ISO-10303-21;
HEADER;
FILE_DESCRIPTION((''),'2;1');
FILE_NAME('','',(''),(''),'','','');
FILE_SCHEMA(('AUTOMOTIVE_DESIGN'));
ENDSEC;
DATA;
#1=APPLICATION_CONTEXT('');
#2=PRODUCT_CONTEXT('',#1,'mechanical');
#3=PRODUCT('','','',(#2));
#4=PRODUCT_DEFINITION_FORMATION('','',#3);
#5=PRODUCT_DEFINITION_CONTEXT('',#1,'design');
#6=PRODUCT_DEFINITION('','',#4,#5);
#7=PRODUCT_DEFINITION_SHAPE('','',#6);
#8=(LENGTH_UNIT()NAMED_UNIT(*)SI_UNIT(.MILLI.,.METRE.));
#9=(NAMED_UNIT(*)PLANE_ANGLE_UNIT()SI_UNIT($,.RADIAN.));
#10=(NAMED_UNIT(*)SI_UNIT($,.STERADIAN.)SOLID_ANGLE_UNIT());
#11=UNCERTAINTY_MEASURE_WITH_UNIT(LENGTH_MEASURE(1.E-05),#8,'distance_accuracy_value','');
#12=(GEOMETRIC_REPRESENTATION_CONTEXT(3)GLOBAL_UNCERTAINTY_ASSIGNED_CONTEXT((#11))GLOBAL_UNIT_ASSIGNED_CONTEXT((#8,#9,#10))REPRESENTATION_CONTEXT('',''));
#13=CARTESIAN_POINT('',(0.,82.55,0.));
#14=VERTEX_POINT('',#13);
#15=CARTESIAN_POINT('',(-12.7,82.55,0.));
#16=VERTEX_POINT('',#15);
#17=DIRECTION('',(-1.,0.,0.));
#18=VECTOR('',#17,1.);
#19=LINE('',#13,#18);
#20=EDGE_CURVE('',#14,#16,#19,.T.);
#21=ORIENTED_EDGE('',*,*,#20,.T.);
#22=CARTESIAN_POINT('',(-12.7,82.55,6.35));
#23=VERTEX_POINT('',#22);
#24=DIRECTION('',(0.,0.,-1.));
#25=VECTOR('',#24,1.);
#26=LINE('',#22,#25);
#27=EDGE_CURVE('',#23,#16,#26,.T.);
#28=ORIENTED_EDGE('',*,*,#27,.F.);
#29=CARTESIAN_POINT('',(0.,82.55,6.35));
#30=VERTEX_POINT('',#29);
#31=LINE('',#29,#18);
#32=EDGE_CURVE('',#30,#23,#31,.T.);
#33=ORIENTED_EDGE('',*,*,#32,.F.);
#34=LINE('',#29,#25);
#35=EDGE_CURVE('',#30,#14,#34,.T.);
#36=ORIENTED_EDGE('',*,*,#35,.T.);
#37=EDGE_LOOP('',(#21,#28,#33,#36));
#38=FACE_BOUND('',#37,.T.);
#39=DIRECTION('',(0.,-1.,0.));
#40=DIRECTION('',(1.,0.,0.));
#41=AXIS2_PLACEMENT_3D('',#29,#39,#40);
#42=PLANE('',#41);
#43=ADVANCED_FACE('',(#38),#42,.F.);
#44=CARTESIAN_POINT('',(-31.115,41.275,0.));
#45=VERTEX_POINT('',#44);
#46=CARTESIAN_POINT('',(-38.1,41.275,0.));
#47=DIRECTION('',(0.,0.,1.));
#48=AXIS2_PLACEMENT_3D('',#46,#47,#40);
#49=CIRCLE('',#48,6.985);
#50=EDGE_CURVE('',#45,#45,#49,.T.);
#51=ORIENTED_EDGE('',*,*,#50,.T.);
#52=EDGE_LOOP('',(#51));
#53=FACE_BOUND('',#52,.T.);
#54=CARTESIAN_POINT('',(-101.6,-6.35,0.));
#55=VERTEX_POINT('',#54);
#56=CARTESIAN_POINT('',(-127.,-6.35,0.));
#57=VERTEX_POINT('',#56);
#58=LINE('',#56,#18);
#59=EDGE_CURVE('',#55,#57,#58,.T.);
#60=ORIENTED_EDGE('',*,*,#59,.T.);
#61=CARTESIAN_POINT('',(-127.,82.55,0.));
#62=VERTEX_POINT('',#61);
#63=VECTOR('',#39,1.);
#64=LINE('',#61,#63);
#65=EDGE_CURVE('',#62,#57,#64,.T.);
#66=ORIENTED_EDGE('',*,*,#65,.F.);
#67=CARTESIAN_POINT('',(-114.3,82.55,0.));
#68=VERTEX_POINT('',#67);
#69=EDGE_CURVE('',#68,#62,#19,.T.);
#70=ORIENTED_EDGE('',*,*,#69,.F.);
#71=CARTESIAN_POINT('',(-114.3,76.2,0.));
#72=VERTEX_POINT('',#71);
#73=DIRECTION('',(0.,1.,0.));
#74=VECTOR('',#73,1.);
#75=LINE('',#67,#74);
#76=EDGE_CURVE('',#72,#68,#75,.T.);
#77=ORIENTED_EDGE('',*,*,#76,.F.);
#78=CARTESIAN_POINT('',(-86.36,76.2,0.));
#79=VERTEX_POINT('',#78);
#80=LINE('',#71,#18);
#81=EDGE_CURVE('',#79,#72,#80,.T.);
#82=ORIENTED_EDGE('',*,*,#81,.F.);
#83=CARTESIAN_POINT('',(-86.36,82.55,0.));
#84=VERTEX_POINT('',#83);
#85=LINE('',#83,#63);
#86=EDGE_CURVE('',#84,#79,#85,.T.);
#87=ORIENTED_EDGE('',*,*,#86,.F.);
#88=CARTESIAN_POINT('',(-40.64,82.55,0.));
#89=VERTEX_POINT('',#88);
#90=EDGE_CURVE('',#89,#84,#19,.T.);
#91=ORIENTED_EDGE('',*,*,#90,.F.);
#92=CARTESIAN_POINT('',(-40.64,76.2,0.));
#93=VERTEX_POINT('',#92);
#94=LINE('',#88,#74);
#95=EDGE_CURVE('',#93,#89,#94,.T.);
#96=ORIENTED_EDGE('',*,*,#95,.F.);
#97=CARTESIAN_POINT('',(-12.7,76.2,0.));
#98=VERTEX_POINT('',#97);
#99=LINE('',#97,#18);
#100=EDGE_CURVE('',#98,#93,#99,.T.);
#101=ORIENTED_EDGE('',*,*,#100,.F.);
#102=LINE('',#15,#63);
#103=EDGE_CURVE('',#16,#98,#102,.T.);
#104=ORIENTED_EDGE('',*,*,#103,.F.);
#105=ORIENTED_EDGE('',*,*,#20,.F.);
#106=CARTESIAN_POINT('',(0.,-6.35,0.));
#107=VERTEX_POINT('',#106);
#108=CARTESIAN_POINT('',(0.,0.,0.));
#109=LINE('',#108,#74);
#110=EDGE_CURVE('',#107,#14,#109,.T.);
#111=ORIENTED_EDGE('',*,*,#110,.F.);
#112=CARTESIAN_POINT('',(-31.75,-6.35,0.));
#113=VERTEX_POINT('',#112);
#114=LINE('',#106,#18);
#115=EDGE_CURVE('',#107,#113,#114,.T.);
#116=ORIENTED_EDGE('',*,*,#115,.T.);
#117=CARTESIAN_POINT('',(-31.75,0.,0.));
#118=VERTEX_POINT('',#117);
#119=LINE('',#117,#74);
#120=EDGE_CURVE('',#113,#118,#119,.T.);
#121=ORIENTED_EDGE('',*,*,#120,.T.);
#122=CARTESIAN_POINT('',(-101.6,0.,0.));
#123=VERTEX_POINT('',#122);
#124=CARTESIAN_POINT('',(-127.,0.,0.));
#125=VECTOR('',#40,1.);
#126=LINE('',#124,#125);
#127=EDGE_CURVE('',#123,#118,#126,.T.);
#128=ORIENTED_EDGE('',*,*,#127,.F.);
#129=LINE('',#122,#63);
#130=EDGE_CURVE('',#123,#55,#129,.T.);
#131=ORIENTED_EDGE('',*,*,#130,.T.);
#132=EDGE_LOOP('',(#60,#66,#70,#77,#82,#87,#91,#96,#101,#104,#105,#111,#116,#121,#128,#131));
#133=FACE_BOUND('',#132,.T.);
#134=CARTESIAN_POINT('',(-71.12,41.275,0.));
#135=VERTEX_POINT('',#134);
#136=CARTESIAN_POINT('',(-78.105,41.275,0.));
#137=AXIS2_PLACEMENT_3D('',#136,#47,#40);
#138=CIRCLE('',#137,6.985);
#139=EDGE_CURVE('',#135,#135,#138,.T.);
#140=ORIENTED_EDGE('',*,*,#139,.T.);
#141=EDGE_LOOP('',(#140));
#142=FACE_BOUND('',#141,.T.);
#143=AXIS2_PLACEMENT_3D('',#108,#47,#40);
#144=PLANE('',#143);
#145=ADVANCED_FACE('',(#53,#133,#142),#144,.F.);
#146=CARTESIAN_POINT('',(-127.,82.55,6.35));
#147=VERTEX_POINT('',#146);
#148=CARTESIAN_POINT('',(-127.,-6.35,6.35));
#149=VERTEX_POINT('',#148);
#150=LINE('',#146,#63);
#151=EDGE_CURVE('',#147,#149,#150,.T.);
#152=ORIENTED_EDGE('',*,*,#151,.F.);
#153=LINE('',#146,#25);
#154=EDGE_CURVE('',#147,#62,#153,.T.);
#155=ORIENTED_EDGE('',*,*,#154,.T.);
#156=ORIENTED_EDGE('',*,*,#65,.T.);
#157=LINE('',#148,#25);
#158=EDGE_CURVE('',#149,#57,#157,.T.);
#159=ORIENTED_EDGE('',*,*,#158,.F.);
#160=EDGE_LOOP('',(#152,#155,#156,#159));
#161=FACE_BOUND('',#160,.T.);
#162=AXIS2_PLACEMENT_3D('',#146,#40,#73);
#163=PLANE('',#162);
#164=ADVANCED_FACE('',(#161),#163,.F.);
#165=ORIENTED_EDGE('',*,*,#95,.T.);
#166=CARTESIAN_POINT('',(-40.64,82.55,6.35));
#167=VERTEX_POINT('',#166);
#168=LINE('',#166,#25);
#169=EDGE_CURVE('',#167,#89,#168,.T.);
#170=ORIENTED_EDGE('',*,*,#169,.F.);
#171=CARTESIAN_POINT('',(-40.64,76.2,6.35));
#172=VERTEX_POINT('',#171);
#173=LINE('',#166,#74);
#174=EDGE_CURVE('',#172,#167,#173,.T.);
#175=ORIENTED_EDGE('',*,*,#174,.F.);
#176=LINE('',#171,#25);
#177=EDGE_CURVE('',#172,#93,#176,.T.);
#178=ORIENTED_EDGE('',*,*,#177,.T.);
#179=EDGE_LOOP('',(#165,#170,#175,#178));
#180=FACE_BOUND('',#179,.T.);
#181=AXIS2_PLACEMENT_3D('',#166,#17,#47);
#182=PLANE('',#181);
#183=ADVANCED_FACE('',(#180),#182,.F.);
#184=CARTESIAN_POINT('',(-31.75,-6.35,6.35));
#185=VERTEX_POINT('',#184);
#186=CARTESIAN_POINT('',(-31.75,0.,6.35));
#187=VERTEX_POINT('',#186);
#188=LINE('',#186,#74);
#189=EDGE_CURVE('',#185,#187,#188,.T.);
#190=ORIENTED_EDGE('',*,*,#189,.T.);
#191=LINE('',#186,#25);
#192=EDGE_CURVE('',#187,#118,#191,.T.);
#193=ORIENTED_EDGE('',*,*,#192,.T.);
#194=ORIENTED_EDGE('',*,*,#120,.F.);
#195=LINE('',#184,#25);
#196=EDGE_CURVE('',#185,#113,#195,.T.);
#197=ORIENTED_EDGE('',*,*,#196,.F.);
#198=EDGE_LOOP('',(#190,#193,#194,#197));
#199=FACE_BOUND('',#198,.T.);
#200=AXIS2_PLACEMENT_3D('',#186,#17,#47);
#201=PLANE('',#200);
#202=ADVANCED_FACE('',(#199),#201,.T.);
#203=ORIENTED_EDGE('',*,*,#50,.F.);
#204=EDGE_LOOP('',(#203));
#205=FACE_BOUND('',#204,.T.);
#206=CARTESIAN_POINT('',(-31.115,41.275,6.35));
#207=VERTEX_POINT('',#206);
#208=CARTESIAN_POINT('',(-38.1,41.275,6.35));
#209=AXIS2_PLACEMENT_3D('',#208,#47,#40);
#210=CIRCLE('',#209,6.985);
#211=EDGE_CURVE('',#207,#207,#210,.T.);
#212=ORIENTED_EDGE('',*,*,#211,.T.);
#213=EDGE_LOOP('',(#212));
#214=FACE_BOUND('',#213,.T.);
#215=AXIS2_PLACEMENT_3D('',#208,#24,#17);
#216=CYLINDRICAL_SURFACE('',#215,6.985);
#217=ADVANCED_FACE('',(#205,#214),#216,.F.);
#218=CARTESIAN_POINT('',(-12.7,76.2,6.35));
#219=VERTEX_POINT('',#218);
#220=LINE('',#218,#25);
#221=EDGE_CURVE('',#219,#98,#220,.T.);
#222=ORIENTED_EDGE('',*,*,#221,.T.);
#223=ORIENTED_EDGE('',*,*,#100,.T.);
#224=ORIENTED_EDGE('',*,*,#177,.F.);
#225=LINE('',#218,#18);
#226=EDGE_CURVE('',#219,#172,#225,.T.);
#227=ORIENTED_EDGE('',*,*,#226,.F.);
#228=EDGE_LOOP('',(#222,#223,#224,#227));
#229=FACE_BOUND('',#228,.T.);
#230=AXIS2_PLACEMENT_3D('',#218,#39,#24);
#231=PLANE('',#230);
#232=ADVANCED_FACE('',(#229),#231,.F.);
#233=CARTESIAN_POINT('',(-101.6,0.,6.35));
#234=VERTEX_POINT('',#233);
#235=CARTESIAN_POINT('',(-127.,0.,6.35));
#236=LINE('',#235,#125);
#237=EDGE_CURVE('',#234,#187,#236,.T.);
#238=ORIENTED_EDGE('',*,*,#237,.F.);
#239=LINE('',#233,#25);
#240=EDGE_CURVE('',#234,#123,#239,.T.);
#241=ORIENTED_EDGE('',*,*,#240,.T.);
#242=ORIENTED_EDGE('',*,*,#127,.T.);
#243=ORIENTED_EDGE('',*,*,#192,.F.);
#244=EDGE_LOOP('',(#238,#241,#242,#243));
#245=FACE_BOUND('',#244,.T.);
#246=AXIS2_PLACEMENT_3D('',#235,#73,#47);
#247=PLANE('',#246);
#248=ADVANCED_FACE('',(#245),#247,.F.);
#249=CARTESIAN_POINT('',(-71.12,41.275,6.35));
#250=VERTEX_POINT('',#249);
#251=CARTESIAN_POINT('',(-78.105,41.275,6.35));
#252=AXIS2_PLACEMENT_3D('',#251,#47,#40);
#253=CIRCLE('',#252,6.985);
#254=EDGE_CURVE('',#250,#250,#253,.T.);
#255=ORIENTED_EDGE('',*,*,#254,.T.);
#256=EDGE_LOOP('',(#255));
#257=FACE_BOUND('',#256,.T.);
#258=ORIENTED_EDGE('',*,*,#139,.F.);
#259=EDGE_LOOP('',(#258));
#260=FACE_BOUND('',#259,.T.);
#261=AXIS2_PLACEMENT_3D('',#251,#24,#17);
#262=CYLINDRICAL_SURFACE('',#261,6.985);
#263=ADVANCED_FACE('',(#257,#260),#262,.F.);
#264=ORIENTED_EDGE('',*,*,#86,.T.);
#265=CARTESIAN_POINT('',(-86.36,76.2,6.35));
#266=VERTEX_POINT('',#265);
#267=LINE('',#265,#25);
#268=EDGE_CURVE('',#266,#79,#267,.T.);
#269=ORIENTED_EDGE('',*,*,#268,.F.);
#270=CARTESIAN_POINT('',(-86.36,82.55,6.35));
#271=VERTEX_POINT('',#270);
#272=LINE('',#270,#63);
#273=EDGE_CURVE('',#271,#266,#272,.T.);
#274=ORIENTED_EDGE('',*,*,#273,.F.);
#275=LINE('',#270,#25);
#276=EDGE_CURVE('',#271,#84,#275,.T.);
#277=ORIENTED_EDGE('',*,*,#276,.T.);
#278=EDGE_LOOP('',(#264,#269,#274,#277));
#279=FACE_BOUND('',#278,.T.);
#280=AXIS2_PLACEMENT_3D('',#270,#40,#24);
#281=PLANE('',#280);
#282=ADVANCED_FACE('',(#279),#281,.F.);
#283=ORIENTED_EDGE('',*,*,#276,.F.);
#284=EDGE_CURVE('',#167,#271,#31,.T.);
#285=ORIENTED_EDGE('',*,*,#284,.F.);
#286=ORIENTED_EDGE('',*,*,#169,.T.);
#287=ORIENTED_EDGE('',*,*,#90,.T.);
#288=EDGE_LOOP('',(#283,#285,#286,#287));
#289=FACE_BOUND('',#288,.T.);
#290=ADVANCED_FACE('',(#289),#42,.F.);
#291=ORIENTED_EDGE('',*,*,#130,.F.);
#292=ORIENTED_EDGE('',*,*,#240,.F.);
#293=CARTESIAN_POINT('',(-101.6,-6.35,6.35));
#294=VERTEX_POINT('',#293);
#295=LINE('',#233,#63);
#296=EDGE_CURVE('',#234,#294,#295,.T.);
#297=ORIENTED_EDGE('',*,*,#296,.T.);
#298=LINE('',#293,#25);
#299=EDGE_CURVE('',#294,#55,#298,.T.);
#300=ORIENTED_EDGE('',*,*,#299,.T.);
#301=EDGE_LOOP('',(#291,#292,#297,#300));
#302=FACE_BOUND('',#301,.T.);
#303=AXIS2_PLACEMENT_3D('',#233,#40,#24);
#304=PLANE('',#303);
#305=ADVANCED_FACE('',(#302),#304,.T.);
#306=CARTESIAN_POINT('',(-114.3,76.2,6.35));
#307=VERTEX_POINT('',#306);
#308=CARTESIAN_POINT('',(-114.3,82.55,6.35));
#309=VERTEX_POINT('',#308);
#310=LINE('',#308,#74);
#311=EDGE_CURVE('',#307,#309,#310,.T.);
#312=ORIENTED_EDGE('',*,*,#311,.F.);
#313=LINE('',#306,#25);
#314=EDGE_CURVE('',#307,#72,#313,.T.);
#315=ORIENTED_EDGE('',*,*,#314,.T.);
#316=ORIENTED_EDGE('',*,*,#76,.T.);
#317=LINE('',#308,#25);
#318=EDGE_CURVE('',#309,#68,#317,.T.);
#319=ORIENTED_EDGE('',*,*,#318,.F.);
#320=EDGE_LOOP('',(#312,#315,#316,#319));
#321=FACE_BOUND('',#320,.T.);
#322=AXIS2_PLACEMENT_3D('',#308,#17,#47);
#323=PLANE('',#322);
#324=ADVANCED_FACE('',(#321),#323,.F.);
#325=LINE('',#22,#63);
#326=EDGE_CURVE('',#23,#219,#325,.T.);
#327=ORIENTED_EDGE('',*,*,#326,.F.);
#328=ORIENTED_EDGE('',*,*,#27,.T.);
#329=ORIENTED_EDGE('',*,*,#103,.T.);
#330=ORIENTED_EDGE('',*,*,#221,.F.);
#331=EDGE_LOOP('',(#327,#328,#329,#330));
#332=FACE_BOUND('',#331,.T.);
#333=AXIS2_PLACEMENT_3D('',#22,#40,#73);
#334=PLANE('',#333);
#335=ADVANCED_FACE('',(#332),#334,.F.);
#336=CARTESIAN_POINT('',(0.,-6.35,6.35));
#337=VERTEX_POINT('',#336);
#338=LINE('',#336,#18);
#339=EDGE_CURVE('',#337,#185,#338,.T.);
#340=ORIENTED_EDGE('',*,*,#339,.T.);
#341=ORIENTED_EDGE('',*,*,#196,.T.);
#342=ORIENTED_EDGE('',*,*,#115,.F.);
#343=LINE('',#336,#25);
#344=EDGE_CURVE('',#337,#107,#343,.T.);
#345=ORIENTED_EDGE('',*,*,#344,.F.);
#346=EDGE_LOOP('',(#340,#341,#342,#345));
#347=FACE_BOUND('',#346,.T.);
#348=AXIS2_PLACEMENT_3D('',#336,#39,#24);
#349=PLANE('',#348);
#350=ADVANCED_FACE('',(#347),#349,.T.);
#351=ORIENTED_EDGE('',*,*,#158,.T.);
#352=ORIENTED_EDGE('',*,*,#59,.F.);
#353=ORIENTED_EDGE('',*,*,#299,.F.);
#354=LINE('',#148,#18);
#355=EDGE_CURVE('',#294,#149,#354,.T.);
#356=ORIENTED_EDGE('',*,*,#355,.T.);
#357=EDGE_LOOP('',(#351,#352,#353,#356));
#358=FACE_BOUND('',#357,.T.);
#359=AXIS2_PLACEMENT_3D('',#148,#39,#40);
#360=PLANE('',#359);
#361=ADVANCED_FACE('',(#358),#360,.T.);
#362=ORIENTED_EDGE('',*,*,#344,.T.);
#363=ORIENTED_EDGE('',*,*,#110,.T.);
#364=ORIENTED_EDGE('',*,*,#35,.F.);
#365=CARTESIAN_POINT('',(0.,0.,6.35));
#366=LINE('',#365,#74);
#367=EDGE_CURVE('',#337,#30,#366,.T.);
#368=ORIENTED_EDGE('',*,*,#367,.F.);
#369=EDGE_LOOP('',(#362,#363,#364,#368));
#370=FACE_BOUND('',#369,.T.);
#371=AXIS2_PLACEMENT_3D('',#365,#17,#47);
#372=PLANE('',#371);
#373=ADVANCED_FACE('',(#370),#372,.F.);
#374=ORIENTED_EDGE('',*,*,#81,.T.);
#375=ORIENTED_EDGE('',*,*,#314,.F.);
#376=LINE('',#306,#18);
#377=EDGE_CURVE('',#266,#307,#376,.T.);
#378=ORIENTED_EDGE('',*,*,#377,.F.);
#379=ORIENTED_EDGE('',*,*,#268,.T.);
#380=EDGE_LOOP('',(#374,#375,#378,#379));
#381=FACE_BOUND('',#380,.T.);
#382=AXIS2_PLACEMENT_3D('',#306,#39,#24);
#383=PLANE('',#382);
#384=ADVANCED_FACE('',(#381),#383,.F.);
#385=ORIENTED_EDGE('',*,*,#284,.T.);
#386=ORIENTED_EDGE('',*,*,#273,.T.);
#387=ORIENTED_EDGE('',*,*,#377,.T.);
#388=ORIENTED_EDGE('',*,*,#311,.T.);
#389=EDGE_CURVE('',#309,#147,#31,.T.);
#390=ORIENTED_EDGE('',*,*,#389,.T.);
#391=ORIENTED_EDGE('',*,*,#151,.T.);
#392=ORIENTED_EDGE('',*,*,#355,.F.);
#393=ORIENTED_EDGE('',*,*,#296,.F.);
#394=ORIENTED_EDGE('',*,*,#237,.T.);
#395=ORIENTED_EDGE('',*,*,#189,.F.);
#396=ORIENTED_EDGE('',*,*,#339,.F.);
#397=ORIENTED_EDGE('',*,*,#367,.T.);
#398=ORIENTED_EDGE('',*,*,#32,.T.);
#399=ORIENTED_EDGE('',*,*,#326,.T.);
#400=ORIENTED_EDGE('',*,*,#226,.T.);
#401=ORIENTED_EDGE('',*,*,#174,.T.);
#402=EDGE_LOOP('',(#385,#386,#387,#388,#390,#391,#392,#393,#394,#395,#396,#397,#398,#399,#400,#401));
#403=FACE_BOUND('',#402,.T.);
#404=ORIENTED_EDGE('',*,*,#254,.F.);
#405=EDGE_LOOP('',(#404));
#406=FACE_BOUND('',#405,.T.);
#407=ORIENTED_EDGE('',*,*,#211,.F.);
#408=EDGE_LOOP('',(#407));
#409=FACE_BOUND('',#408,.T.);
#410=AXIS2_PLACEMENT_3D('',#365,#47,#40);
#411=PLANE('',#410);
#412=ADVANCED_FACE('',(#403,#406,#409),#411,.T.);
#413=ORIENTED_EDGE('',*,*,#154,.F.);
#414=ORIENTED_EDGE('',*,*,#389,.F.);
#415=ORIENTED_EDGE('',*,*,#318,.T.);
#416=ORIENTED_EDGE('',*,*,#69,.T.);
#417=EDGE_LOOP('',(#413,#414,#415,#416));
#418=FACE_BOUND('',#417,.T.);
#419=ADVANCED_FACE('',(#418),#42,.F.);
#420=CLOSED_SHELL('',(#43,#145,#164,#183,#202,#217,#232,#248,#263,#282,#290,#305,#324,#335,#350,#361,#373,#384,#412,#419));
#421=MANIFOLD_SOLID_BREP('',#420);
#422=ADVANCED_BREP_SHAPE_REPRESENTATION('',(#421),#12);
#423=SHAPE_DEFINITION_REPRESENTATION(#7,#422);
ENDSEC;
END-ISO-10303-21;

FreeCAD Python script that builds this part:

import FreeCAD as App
import Part
import Sketcher
from FreeCAD import Vector
Q = App.Units.Quantity

doc = App.newDocument("Part")
body = doc.addObject("PartDesign::Body", "Body")

sketch1 = body.newObject("Sketcher::SketchObject", "Sketch")
sketch1.AttachmentSupport = (doc.getObject("XY_Plane"), [""])
sketch1.MapMode = "FlatFace"
sketch1.addGeometry(Part.LineSegment(Vector(-127, 82.55, 0), Vector(-127, 0, 0)), False)
sketch1.addGeometry(Part.LineSegment(Vector(-127, 0, 0), Vector(0, 0, 0)), False)
sketch1.addGeometry(Part.LineSegment(Vector(0, 0, 0), Vector(0, 82.55, 0)), False)
sketch1.addGeometry(Part.LineSegment(Vector(0, 82.55, 0), Vector(-127, 82.55, 0)), False)
sketch1.addGeometry(Part.Circle(Vector(-78.105, 41.275, 0), Vector(0, 0, 1), 6.985), False)
sketch1.addGeometry(Part.Circle(Vector(-38.1, 41.275, 0), Vector(0, 0, 1), 6.985), False)
sketch1.addConstraint(Sketcher.Constraint("Coincident", 0, 2, 1, 1))
sketch1.addConstraint(Sketcher.Constraint("Coincident", 1, 2, 2, 1))
sketch1.addConstraint(Sketcher.Constraint("Coincident", 2, 2, 3, 1))
sketch1.addConstraint(Sketcher.Constraint("Coincident", 3, 2, 0, 1))
sketch1.addConstraint(Sketcher.Constraint("Vertical", 0))
sketch1.addConstraint(Sketcher.Constraint("Horizontal", 1))
sketch1.addConstraint(Sketcher.Constraint("Vertical", 2))
sketch1.addConstraint(Sketcher.Constraint("Horizontal", 3))
sketch1.addConstraint(Sketcher.Constraint("Coincident", 1, 2, -1, 1))
sketch1.addConstraint(Sketcher.Constraint("Equal", 4, 5))
sketch1.addConstraint(Sketcher.Constraint("Horizontal", 4, 3, 5, 3))
sketch1.addConstraint(Sketcher.Constraint("Diameter", 4, Q("0.55 in")))
sketch1.addConstraint(Sketcher.Constraint("DistanceX", 1, 1, 1, 2, Q("5 in")))
sketch1.addConstraint(Sketcher.Constraint("DistanceY", 0, 2, 0, 1, Q("3.25 in")))
sketch1.addConstraint(Sketcher.Constraint("DistanceX", 5, 3, -1, 1, Q("1.5 in")))
sketch1.addConstraint(Sketcher.Constraint("DistanceX", 4, 3, -1, 1, Q("3.075 in")))
sketch1.addConstraint(Sketcher.Constraint("DistanceY", -1, 1, 4, 3, Q("1.625 in")))
pad1 = body.newObject("PartDesign::Pad", "Pad")
pad1.Profile = sketch1
pad1.Length = Q("0.25 in")

sketch2 = body.newObject("Sketcher::SketchObject", "Sketch001")
sketch2.AttachmentSupport = (doc.getObject("XY_Plane"), [""])
sketch2.MapMode = "FlatFace"
sketch2.addGeometry(Part.LineSegment(Vector(0, 0, 0), Vector(0, -6.35, 0)), False)
sketch2.addGeometry(Part.LineSegment(Vector(0, -6.35, 0), Vector(-31.75, -6.35, 0)), False)
sketch2.addGeometry(Part.LineSegment(Vector(-31.75, -6.35, 0), Vector(-31.75, 0, 0)), False)
sketch2.addGeometry(Part.LineSegment(Vector(-31.75, 0, 0), Vector(0, 0, 0)), False)
sketch2.addGeometry(Part.LineSegment(Vector(-101.6, 0, 0), Vector(-101.6, -6.35, 0)), False)
sketch2.addGeometry(Part.LineSegment(Vector(-101.6, -6.35, 0), Vector(-127, -6.35, 0)), False)
sketch2.addGeometry(Part.LineSegment(Vector(-127, -6.35, 0), Vector(-127, 0, 0)), False)
sketch2.addGeometry(Part.LineSegment(Vector(-127, 0, 0), Vector(-101.6, 0, 0)), False)
sketch2.addConstraint(Sketcher.Constraint("Coincident", 0, 2, 1, 1))
sketch2.addConstraint(Sketcher.Constraint("Coincident", 1, 2, 2, 1))
sketch2.addConstraint(Sketcher.Constraint("Coincident", 2, 2, 3, 1))
sketch2.addConstraint(Sketcher.Constraint("Coincident", 3, 2, 0, 1))
sketch2.addConstraint(Sketcher.Constraint("Coincident", 4, 2, 5, 1))
sketch2.addConstraint(Sketcher.Constraint("Coincident", 5, 2, 6, 1))
sketch2.addConstraint(Sketcher.Constraint("Coincident", 6, 2, 7, 1))
sketch2.addConstraint(Sketcher.Constraint("Coincident", 7, 2, 4, 1))
sketch2.addConstraint(Sketcher.Constraint("Vertical", 0))
sketch2.addConstraint(Sketcher.Constraint("Horizontal", 1))
sketch2.addConstraint(Sketcher.Constraint("Vertical", 2))
sketch2.addConstraint(Sketcher.Constraint("Horizontal", 3))
sketch2.addConstraint(Sketcher.Constraint("Vertical", 4))
sketch2.addConstraint(Sketcher.Constraint("Horizontal", 5))
sketch2.addConstraint(Sketcher.Constraint("Vertical", 6))
sketch2.addConstraint(Sketcher.Constraint("Horizontal", 7))
sketch2.addConstraint(Sketcher.Constraint("Coincident", 3, 2, -1, 1))
sketch2.addConstraint(Sketcher.Constraint("PointOnObject", 6, 2, -1))
sketch2.addConstraint(Sketcher.Constraint("Horizontal", 1, 2, 4, 2))
sketch2.addConstraint(Sketcher.Constraint("DistanceX", 5, 2, 5, 1, Q("1 in")))
sketch2.addConstraint(Sketcher.Constraint("DistanceX", 4, 2, -1, 1, Q("4 in")))
sketch2.addConstraint(Sketcher.Constraint("DistanceX", 1, 2, 1, 1, Q("1.25 in")))
sketch2.addConstraint(Sketcher.Constraint("DistanceY", 0, 2, 0, 1, Q("0.25 in")))
pad2 = body.newObject("PartDesign::Pad", "Pad001")
pad2.Profile = sketch2
pad2.Length = Q("0.25 in")

sketch3 = body.newObject("Sketcher::SketchObject", "Sketch002")
sketch3.AttachmentSupport = (doc.getObject("XY_Plane"), [""])
sketch3.MapMode = "FlatFace"
sketch3.addGeometry(Part.LineSegment(Vector(-12.7, 82.55, 0), Vector(-12.7, 76.2, 0)), False)
sketch3.addGeometry(Part.LineSegment(Vector(-12.7, 76.2, 0), Vector(-40.64, 76.2, 0)), False)
sketch3.addGeometry(Part.LineSegment(Vector(-40.64, 76.2, 0), Vector(-40.64, 82.55, 0)), False)
sketch3.addGeometry(Part.LineSegment(Vector(-40.64, 82.55, 0), Vector(-12.7, 82.55, 0)), False)
sketch3.addGeometry(Part.LineSegment(Vector(-86.36, 82.55, 0), Vector(-86.36, 76.2, 0)), False)
sketch3.addGeometry(Part.LineSegment(Vector(-86.36, 76.2, 0), Vector(-114.3, 76.2, 0)), False)
sketch3.addGeometry(Part.LineSegment(Vector(-114.3, 76.2, 0), Vector(-114.3, 82.55, 0)), False)
sketch3.addGeometry(Part.LineSegment(Vector(-114.3, 82.55, 0), Vector(-86.36, 82.55, 0)), False)
sketch3.addConstraint(Sketcher.Constraint("Coincident", 0, 2, 1, 1))
sketch3.addConstraint(Sketcher.Constraint("Coincident", 1, 2, 2, 1))
sketch3.addConstraint(Sketcher.Constraint("Coincident", 2, 2, 3, 1))
sketch3.addConstraint(Sketcher.Constraint("Coincident", 3, 2, 0, 1))
sketch3.addConstraint(Sketcher.Constraint("Coincident", 4, 2, 5, 1))
sketch3.addConstraint(Sketcher.Constraint("Coincident", 5, 2, 6, 1))
sketch3.addConstraint(Sketcher.Constraint("Coincident", 6, 2, 7, 1))
sketch3.addConstraint(Sketcher.Constraint("Coincident", 7, 2, 4, 1))
sketch3.addConstraint(Sketcher.Constraint("Vertical", 0))
sketch3.addConstraint(Sketcher.Constraint("Horizontal", 1))
sketch3.addConstraint(Sketcher.Constraint("Vertical", 2))
sketch3.addConstraint(Sketcher.Constraint("Horizontal", 3))
sketch3.addConstraint(Sketcher.Constraint("Vertical", 4))
sketch3.addConstraint(Sketcher.Constraint("Horizontal", 5))
sketch3.addConstraint(Sketcher.Constraint("Vertical", 6))
sketch3.addConstraint(Sketcher.Constraint("Horizontal", 7))
sketch3.addConstraint(Sketcher.Constraint("Horizontal", 1, 2, 4, 2))
sketch3.addConstraint(Sketcher.Constraint("Horizontal", 3, 2, 6, 2))
sketch3.addConstraint(Sketcher.Constraint("Equal", 3, 5))
sketch3.addConstraint(Sketcher.Constraint("DistanceX", 1, 2, 1, 1, Q("1.1 in")))
sketch3.addConstraint(Sketcher.Constraint("DistanceY", -1, 1, 0, 2, Q("3 in")))
sketch3.addConstraint(Sketcher.Constraint("DistanceX", 5, 2, 0, 2, Q("4 in")))
sketch3.addConstraint(Sketcher.Constraint("DistanceY", 0, 2, 0, 1, Q("0.25 in")))
sketch3.addConstraint(Sketcher.Constraint("DistanceX", 0, 2, -1, 1, Q("0.5 in")))
pocket1 = body.newObject("PartDesign::Pocket", "Pocket")
pocket1.Profile = sketch3
pocket1.Length = Q("0.25 in")
pocket1.Reversed = True

doc.recompute()
